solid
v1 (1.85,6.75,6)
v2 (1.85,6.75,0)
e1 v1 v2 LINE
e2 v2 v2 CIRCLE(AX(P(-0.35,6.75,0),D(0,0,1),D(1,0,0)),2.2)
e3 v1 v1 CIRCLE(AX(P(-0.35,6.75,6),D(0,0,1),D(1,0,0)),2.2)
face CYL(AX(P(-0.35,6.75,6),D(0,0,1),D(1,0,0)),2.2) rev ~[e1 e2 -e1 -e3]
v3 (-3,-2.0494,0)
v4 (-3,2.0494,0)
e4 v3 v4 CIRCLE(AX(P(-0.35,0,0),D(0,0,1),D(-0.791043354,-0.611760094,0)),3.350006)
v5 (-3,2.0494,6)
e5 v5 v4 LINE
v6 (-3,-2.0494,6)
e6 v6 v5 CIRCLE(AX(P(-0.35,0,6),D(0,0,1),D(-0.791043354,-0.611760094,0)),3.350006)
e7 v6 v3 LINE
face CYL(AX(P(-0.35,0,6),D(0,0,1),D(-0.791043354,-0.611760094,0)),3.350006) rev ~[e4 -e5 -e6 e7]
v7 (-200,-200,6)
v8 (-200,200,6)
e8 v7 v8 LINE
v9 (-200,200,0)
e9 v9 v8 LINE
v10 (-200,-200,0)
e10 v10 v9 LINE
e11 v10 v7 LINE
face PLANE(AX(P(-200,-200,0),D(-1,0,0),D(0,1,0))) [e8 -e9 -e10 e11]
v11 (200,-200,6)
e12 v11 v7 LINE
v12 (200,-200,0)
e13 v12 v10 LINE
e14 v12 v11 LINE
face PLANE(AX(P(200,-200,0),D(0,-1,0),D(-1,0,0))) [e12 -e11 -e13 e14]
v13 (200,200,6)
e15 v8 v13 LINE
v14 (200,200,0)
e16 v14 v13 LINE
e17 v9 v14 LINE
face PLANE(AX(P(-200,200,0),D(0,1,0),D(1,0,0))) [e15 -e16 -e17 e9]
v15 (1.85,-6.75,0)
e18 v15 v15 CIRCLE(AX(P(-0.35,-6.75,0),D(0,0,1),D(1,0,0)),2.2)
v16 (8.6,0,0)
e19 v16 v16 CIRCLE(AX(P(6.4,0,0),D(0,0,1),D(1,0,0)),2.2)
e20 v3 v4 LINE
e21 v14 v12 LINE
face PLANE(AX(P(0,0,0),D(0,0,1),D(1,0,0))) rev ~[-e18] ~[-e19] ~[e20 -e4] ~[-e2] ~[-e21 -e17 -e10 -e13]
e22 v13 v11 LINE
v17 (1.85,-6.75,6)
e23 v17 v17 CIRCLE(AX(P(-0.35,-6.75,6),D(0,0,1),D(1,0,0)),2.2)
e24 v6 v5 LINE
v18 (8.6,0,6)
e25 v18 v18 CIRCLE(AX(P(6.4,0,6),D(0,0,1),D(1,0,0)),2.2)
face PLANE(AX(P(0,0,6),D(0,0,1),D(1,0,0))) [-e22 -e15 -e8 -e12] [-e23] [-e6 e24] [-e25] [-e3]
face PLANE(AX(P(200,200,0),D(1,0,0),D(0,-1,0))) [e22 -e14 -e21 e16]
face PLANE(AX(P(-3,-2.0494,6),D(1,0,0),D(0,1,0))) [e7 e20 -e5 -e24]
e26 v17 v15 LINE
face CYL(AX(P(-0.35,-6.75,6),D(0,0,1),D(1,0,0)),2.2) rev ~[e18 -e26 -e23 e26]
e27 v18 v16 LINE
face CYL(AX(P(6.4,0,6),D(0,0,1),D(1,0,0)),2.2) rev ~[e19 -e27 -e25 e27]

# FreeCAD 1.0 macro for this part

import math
import FreeCAD as App
import Part
import Sketcher
from FreeCAD import Vector


def add_polygon(sketch, points):
    """Adds a closed chain of lines whose ends are joined by coincident constraints."""
    first, n = sketch.GeometryCount, len(points)
    for a, b in zip(points, points[1:] + points[:1]):
        sketch.addGeometry(Part.LineSegment(App.Vector(*a, 0), App.Vector(*b, 0)), False)
    for i in range(n):
        sketch.addConstraint(Sketcher.Constraint("Coincident", first + i, 2, first + (i + 1) % n, 1))

doc = App.newDocument("Part")
body = doc.addObject("PartDesign::Body", "Body")

sketch1 = body.newObject("Sketcher::SketchObject", "Sketch")
sketch1.AttachmentSupport = (doc.getObject("XY_Plane"), [""])
sketch1.MapMode = "FlatFace"
add_polygon(sketch1, [(200, 200), (-200, 200), (-200, -200), (200, -200)])
sketch1.addConstraint([
    Sketcher.Constraint("Horizontal", 0),
    Sketcher.Constraint("Vertical", 1),
    Sketcher.Constraint("Horizontal", 2),
    Sketcher.Constraint("Vertical", 3),
    Sketcher.Constraint("Symmetric", 0, 2, 2, 2, -1, 1),
    Sketcher.Constraint("Equal", 2, 1),
    Sketcher.Constraint("DistanceX", 0, 2, 0, 1, 400.0),
])
pad1 = body.newObject("PartDesign::Pad", "Pad")
pad1.Profile = sketch1
pad1.Length = 6

sketch2 = body.newObject("Sketcher::SketchObject", "Sketch001")
sketch2.AttachmentSupport = (doc.getObject("XY_Plane"), [""])
sketch2.MapMode = "FlatFace"
sketch2.AttachmentOffset = App.Placement(Vector(0, 0, 6), App.Rotation())
sketch2.addGeometry([
    Part.LineSegment(Vector(-3, 2, 0), Vector(-3, -2, 0)),
    Part.ArcOfCircle(Part.Circle(Vector(-0.3, 0, 0), Vector(0, 0, 1), 3.4), math.radians(-142), math.radians(142)),
    Part.Circle(Vector(-0.3, -6.8, 0), Vector(0, 0, 1), 2.2),
    Part.Circle(Vector(6.4, 0, 0), Vector(0, 0, 1), 2.2),
    Part.Circle(Vector(-0.3, 6.8, 0), Vector(0, 0, 1), 2.2),
], False)
sketch2.addConstraint([
    Sketcher.Constraint("Coincident", 0, 1, 1, 2),
    Sketcher.Constraint("Coincident", 1, 1, 0, 2),
    Sketcher.Constraint("Vertical", 0),
    Sketcher.Constraint("Equal", 2, 3),
    Sketcher.Constraint("Equal", 3, 4),
    Sketcher.Constraint("Symmetric", 2, 3, 4, 3, -1),
    Sketcher.Constraint("PointOnObject", 1, 3, -1),
    Sketcher.Constraint("PointOnObject", 3, 3, -1),
    Sketcher.Constraint("Vertical", 1, 3, 2, 3),
    Sketcher.Constraint("Diameter", 2, 4.4),
    Sketcher.Constraint("Radius", 1, 3.35),
    Sketcher.Constraint("DistanceX", 0, 1, -1, 1, 3.0),
    Sketcher.Constraint("DistanceX", -1, 1, 3, 3, 6.4),
    Sketcher.Constraint("DistanceY", 2, 3, 4, 3, 13.5),
    Sketcher.Constraint("DistanceX", 1, 3, -1, 1, 0.35),
])
pocket1 = body.newObject("PartDesign::Pocket", "Pocket")
pocket1.Profile = sketch2
pocket1.Length = 6

doc.recompute()
